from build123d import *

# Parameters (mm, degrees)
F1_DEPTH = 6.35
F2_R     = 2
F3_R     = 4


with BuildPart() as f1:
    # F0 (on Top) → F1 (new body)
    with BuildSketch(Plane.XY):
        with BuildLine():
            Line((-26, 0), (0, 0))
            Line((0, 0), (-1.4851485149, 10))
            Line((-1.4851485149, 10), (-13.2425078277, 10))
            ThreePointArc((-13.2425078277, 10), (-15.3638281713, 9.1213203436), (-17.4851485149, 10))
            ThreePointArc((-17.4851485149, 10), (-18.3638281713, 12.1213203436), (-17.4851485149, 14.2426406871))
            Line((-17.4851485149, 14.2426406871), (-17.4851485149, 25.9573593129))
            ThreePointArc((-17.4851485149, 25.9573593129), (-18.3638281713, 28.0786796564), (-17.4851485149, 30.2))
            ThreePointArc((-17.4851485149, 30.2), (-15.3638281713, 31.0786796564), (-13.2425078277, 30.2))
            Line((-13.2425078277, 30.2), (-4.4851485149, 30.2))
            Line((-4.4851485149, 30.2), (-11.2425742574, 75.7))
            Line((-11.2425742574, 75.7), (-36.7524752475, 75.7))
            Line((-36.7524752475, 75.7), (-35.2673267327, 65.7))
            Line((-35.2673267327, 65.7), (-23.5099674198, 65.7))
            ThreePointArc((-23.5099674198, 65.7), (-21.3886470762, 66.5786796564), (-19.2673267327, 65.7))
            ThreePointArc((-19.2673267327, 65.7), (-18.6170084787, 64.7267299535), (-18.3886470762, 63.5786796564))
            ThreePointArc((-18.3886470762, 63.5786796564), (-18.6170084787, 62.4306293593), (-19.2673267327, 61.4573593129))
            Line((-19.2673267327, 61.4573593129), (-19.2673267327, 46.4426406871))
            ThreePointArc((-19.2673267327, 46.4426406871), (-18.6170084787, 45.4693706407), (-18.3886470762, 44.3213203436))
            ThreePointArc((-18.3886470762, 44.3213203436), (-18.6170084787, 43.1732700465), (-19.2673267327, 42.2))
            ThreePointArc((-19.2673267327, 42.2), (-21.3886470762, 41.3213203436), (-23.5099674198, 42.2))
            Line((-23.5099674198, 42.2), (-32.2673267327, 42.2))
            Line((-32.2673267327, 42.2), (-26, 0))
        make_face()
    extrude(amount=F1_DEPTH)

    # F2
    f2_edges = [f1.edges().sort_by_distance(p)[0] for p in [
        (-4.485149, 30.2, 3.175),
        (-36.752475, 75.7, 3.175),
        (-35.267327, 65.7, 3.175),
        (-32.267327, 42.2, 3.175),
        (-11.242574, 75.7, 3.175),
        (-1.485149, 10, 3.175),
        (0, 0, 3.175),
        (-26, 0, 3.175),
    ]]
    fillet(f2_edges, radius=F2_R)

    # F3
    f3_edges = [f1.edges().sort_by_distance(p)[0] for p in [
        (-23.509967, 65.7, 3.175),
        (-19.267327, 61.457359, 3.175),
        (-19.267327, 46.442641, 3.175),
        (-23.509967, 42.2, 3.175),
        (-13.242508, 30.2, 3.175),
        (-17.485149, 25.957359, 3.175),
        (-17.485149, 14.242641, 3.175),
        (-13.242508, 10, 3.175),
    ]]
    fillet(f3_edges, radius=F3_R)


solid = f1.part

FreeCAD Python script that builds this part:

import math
import FreeCAD as App
import Part
import Sketcher
from FreeCAD import Vector
Q = App.Units.Quantity


def edges_at(feature, points):
    """Names of the edges that pass closest to the given points."""
    edges = feature.Shape.Edges
    near = lambda p: min(range(len(edges)), key=lambda i: edges[i].distToShape(Part.Vertex(*p))[0])
    return sorted({f"Edge{near(p) + 1}" for p in points})

doc = App.newDocument("Part")
body = doc.addObject("PartDesign::Body", "Body")

# Sketch on XY plane
sketch1 = doc.addObject("Sketcher::SketchObject", "Sketch")
body.addObject(sketch1)
sketch1.AttachmentSupport = (doc.XY_Plane, [""])
sketch1.MapMode = "FlatFace"
sketch1.addGeometry([
    Part.LineSegment(Vector(-26, 0, 0), Vector(0, 0, 0)),  # 0
    Part.LineSegment(Vector(0, 0, 0), Vector(-1.5, 10, 0)),  # 1
    Part.LineSegment(Vector(-1.5, 10, 0), Vector(-13.2, 10, 0)),  # 2
    Part.ArcOfCircle(Part.Circle(Vector(-15.4, 12.1, 0), Vector(0, 0, 1), 3), math.radians(-135), math.radians(-45)),  # 3
    Part.ArcOfCircle(Part.Circle(Vector(-15.4, 12.1, 0), Vector(0, 0, 1), 3), math.radians(135), math.radians(225)),  # 4
    Part.LineSegment(Vector(-17.5, 14.2, 0), Vector(-17.5, 26, 0)),  # 5
    Part.ArcOfCircle(Part.Circle(Vector(-15.4, 28.1, 0), Vector(0, 0, 1), 3), math.radians(135), math.radians(225)),  # 6
    Part.ArcOfCircle(Part.Circle(Vector(-15.4, 28.1, 0), Vector(0, 0, 1), 3), math.radians(45), math.radians(135)),  # 7
    Part.LineSegment(Vector(-13.2, 30.2, 0), Vector(-4.5, 30.2, 0)),  # 8
    Part.LineSegment(Vector(-4.5, 30.2, 0), Vector(-11.2, 75.7, 0)),  # 9
    Part.LineSegment(Vector(-11.2, 75.7, 0), Vector(-36.8, 75.7, 0)),  # 10
    Part.LineSegment(Vector(-36.8, 75.7, 0), Vector(-35.3, 65.7, 0)),  # 11
    Part.LineSegment(Vector(-35.3, 65.7, 0), Vector(-23.5, 65.7, 0)),  # 12
    Part.ArcOfCircle(Part.Circle(Vector(-21.4, 63.6, 0), Vector(0, 0, 1), 3), math.radians(45), math.radians(135)),  # 13
    Part.ArcOfCircle(Part.Circle(Vector(-21.4, 63.6, 0), Vector(0, 0, 1), 3), math.radians(0), math.radians(45)),  # 14
    Part.ArcOfCircle(Part.Circle(Vector(-21.4, 63.6, 0), Vector(0, 0, 1), 3), math.radians(-45), math.radians(0)),  # 15
    Part.LineSegment(Vector(-19.3, 61.5, 0), Vector(-19.3, 46.4, 0)),  # 16
    Part.ArcOfCircle(Part.Circle(Vector(-21.4, 44.3, 0), Vector(0, 0, 1), 3), math.radians(0), math.radians(45)),  # 17
    Part.ArcOfCircle(Part.Circle(Vector(-21.4, 44.3, 0), Vector(0, 0, 1), 3), math.radians(-45), math.radians(0)),  # 18
    Part.ArcOfCircle(Part.Circle(Vector(-21.4, 44.3, 0), Vector(0, 0, 1), 3), math.radians(-135), math.radians(-45)),  # 19
    Part.LineSegment(Vector(-23.5, 42.2, 0), Vector(-32.3, 42.2, 0)),  # 20
    Part.LineSegment(Vector(-32.3, 42.2, 0), Vector(-26, 0, 0)),  # 21
], False)
sketch1.addConstraint([
    Sketcher.Constraint("Coincident", 0, 2, 1, 1),
    Sketcher.Constraint("Coincident", 1, 2, 2, 1),
    Sketcher.Constraint("Coincident", 2, 2, 3, 2),
    Sketcher.Constraint("Tangent", 3, 1, 4, 2),
    Sketcher.Constraint("Coincident", 4, 1, 5, 1),
    Sketcher.Constraint("Coincident", 5, 2, 6, 2),
    Sketcher.Constraint("Tangent", 6, 1, 7, 2),
    Sketcher.Constraint("Coincident", 7, 1, 8, 1),
    Sketcher.Constraint("Coincident", 8, 2, 9, 1),
    Sketcher.Constraint("Coincident", 9, 2, 10, 1),
    Sketcher.Constraint("Coincident", 10, 2, 11, 1),
    Sketcher.Constraint("Coincident", 11, 2, 12, 1),
    Sketcher.Constraint("Coincident", 12, 2, 13, 2),
    Sketcher.Constraint("Tangent", 13, 1, 14, 2),
    Sketcher.Constraint("Tangent", 14, 1, 15, 2),
    Sketcher.Constraint("Coincident", 15, 1, 16, 1),
    Sketcher.Constraint("Coincident", 16, 2, 17, 2),
    Sketcher.Constraint("Tangent", 17, 1, 18, 2),
    Sketcher.Constraint("Tangent", 18, 1, 19, 2),
    Sketcher.Constraint("Coincident", 19, 1, 20, 1),
    Sketcher.Constraint("Coincident", 20, 2, 21, 1),
    Sketcher.Constraint("Coincident", 21, 2, 0, 1),
    Sketcher.Constraint("Horizontal", 0),
    Sketcher.Constraint("Horizontal", 2),
    Sketcher.Constraint("Vertical", 5),
    Sketcher.Constraint("Horizontal", 8),
    Sketcher.Constraint("Horizontal", 10),
    Sketcher.Constraint("Horizontal", 12),
    Sketcher.Constraint("Vertical", 16),
    Sketcher.Constraint("Horizontal", 20),
    Sketcher.Constraint("Coincident", 0, 2, -1, 1),
    Sketcher.Constraint("Coincident", 15, 3, 13, 3),
    Sketcher.Constraint("Coincident", 19, 3, 17, 3),
    Sketcher.Constraint("Equal", 3, 4),
    Sketcher.Constraint("Equal", 4, 6),
    Sketcher.Constraint("Equal", 6, 7),
    Sketcher.Constraint("Equal", 7, 13),
    Sketcher.Constraint("Equal", 15, 17),
    Sketcher.Constraint("Parallel", 1, 9),
    Sketcher.Constraint("Parallel", 9, 11),
    Sketcher.Constraint("Parallel", 11, 21),
    Sketcher.Constraint("Horizontal", 2, 2, 3, 1),
    Sketcher.Constraint("Horizontal", 6, 1, 7, 1),
    Sketcher.Constraint("Horizontal", 12, 2, 13, 1),
    Sketcher.Constraint("Horizontal", 15, 3, 14, 1),
    Sketcher.Constraint("Horizontal", 19, 3, 17, 1),
    Sketcher.Constraint("Horizontal", 18, 1, 19, 1),
    Sketcher.Constraint("Vertical", 4, 3, 6, 3),
    Sketcher.Constraint("Vertical", 15, 3, 17, 3),
    Sketcher.Constraint("Vertical", 3, 1, 4, 1),
    Sketcher.Constraint("Vertical", 5, 2, 6, 1),
    Sketcher.Constraint("Vertical", 13, 1, 15, 1),
    Sketcher.Constraint("Vertical", 16, 2, 18, 1),
    Sketcher.Constraint("Equal", 2, 12),
    Sketcher.Constraint("Equal", 8, 20),
    Sketcher.Constraint("Equal", 1, 11),
    Sketcher.Constraint("Radius", 3, Q("3 mm")),
    Sketcher.Constraint("DistanceX", 0, 1, 0, 2, Q("26 mm")),
    Sketcher.Constraint("DistanceY", -1, 1, 1, 2, Q("10 mm")),
    Sketcher.Constraint("DistanceX", 3, 1, 1, 2, Q("16 mm")),
    Sketcher.Constraint("DistanceX", 6, 1, 8, 2, Q("13 mm")),
    Sketcher.Constraint("DistanceX", 20, 2, 18, 1, Q("13 mm")),
    Sketcher.Constraint("DistanceY", -1, 1, 6, 1, Q("30.2 mm")),
    Sketcher.Constraint("DistanceY", -1, 1, 9, 2, Q("75.7 mm")),
    Sketcher.Constraint("DistanceY", -1, 1, 18, 1, Q("42.2 mm")),
    Sketcher.Constraint("DistanceX", 10, 2, 10, 1, Q("25.509901 mm")),
    Sketcher.Constraint("DistanceX", 2, 2, 2, 1, Q("11.757359 mm")),
])
pad1 = doc.addObject("PartDesign::Pad", "Pad")
body.addObject(pad1)
pad1.Profile = sketch1
pad1.Length = 6.35
doc.recompute()

fillet = doc.addObject("PartDesign::Fillet", "Fillet")
body.addObject(fillet)
fillet.Base = (pad1, edges_at(pad1, [
    (-4.485, 30.2, 3.175),
    (-36.752, 75.7, 3.175),
    (-35.267, 65.7, 3.175),
    (-32.267, 42.2, 3.175),
    (-11.243, 75.7, 3.175),
    (-1.485, 10, 3.175),
    (0, 0, 3.175),
    (-26, 0, 3.175),
]))
fillet.Radius = 2
doc.recompute()

fillet2 = doc.addObject("PartDesign::Fillet", "Fillet001")
body.addObject(fillet2)
fillet2.Base = (fillet, edges_at(fillet, [
    (-23.51, 65.7, 3.175),
    (-19.267, 61.457, 3.175),
    (-19.267, 46.443, 3.175),
    (-23.51, 42.2, 3.175),
    (-13.243, 30.2, 3.175),
    (-17.485, 25.957, 3.175),
    (-17.485, 14.243, 3.175),
    (-13.243, 10, 3.175),
]))
fillet2.Radius = 4

doc.recompute()
